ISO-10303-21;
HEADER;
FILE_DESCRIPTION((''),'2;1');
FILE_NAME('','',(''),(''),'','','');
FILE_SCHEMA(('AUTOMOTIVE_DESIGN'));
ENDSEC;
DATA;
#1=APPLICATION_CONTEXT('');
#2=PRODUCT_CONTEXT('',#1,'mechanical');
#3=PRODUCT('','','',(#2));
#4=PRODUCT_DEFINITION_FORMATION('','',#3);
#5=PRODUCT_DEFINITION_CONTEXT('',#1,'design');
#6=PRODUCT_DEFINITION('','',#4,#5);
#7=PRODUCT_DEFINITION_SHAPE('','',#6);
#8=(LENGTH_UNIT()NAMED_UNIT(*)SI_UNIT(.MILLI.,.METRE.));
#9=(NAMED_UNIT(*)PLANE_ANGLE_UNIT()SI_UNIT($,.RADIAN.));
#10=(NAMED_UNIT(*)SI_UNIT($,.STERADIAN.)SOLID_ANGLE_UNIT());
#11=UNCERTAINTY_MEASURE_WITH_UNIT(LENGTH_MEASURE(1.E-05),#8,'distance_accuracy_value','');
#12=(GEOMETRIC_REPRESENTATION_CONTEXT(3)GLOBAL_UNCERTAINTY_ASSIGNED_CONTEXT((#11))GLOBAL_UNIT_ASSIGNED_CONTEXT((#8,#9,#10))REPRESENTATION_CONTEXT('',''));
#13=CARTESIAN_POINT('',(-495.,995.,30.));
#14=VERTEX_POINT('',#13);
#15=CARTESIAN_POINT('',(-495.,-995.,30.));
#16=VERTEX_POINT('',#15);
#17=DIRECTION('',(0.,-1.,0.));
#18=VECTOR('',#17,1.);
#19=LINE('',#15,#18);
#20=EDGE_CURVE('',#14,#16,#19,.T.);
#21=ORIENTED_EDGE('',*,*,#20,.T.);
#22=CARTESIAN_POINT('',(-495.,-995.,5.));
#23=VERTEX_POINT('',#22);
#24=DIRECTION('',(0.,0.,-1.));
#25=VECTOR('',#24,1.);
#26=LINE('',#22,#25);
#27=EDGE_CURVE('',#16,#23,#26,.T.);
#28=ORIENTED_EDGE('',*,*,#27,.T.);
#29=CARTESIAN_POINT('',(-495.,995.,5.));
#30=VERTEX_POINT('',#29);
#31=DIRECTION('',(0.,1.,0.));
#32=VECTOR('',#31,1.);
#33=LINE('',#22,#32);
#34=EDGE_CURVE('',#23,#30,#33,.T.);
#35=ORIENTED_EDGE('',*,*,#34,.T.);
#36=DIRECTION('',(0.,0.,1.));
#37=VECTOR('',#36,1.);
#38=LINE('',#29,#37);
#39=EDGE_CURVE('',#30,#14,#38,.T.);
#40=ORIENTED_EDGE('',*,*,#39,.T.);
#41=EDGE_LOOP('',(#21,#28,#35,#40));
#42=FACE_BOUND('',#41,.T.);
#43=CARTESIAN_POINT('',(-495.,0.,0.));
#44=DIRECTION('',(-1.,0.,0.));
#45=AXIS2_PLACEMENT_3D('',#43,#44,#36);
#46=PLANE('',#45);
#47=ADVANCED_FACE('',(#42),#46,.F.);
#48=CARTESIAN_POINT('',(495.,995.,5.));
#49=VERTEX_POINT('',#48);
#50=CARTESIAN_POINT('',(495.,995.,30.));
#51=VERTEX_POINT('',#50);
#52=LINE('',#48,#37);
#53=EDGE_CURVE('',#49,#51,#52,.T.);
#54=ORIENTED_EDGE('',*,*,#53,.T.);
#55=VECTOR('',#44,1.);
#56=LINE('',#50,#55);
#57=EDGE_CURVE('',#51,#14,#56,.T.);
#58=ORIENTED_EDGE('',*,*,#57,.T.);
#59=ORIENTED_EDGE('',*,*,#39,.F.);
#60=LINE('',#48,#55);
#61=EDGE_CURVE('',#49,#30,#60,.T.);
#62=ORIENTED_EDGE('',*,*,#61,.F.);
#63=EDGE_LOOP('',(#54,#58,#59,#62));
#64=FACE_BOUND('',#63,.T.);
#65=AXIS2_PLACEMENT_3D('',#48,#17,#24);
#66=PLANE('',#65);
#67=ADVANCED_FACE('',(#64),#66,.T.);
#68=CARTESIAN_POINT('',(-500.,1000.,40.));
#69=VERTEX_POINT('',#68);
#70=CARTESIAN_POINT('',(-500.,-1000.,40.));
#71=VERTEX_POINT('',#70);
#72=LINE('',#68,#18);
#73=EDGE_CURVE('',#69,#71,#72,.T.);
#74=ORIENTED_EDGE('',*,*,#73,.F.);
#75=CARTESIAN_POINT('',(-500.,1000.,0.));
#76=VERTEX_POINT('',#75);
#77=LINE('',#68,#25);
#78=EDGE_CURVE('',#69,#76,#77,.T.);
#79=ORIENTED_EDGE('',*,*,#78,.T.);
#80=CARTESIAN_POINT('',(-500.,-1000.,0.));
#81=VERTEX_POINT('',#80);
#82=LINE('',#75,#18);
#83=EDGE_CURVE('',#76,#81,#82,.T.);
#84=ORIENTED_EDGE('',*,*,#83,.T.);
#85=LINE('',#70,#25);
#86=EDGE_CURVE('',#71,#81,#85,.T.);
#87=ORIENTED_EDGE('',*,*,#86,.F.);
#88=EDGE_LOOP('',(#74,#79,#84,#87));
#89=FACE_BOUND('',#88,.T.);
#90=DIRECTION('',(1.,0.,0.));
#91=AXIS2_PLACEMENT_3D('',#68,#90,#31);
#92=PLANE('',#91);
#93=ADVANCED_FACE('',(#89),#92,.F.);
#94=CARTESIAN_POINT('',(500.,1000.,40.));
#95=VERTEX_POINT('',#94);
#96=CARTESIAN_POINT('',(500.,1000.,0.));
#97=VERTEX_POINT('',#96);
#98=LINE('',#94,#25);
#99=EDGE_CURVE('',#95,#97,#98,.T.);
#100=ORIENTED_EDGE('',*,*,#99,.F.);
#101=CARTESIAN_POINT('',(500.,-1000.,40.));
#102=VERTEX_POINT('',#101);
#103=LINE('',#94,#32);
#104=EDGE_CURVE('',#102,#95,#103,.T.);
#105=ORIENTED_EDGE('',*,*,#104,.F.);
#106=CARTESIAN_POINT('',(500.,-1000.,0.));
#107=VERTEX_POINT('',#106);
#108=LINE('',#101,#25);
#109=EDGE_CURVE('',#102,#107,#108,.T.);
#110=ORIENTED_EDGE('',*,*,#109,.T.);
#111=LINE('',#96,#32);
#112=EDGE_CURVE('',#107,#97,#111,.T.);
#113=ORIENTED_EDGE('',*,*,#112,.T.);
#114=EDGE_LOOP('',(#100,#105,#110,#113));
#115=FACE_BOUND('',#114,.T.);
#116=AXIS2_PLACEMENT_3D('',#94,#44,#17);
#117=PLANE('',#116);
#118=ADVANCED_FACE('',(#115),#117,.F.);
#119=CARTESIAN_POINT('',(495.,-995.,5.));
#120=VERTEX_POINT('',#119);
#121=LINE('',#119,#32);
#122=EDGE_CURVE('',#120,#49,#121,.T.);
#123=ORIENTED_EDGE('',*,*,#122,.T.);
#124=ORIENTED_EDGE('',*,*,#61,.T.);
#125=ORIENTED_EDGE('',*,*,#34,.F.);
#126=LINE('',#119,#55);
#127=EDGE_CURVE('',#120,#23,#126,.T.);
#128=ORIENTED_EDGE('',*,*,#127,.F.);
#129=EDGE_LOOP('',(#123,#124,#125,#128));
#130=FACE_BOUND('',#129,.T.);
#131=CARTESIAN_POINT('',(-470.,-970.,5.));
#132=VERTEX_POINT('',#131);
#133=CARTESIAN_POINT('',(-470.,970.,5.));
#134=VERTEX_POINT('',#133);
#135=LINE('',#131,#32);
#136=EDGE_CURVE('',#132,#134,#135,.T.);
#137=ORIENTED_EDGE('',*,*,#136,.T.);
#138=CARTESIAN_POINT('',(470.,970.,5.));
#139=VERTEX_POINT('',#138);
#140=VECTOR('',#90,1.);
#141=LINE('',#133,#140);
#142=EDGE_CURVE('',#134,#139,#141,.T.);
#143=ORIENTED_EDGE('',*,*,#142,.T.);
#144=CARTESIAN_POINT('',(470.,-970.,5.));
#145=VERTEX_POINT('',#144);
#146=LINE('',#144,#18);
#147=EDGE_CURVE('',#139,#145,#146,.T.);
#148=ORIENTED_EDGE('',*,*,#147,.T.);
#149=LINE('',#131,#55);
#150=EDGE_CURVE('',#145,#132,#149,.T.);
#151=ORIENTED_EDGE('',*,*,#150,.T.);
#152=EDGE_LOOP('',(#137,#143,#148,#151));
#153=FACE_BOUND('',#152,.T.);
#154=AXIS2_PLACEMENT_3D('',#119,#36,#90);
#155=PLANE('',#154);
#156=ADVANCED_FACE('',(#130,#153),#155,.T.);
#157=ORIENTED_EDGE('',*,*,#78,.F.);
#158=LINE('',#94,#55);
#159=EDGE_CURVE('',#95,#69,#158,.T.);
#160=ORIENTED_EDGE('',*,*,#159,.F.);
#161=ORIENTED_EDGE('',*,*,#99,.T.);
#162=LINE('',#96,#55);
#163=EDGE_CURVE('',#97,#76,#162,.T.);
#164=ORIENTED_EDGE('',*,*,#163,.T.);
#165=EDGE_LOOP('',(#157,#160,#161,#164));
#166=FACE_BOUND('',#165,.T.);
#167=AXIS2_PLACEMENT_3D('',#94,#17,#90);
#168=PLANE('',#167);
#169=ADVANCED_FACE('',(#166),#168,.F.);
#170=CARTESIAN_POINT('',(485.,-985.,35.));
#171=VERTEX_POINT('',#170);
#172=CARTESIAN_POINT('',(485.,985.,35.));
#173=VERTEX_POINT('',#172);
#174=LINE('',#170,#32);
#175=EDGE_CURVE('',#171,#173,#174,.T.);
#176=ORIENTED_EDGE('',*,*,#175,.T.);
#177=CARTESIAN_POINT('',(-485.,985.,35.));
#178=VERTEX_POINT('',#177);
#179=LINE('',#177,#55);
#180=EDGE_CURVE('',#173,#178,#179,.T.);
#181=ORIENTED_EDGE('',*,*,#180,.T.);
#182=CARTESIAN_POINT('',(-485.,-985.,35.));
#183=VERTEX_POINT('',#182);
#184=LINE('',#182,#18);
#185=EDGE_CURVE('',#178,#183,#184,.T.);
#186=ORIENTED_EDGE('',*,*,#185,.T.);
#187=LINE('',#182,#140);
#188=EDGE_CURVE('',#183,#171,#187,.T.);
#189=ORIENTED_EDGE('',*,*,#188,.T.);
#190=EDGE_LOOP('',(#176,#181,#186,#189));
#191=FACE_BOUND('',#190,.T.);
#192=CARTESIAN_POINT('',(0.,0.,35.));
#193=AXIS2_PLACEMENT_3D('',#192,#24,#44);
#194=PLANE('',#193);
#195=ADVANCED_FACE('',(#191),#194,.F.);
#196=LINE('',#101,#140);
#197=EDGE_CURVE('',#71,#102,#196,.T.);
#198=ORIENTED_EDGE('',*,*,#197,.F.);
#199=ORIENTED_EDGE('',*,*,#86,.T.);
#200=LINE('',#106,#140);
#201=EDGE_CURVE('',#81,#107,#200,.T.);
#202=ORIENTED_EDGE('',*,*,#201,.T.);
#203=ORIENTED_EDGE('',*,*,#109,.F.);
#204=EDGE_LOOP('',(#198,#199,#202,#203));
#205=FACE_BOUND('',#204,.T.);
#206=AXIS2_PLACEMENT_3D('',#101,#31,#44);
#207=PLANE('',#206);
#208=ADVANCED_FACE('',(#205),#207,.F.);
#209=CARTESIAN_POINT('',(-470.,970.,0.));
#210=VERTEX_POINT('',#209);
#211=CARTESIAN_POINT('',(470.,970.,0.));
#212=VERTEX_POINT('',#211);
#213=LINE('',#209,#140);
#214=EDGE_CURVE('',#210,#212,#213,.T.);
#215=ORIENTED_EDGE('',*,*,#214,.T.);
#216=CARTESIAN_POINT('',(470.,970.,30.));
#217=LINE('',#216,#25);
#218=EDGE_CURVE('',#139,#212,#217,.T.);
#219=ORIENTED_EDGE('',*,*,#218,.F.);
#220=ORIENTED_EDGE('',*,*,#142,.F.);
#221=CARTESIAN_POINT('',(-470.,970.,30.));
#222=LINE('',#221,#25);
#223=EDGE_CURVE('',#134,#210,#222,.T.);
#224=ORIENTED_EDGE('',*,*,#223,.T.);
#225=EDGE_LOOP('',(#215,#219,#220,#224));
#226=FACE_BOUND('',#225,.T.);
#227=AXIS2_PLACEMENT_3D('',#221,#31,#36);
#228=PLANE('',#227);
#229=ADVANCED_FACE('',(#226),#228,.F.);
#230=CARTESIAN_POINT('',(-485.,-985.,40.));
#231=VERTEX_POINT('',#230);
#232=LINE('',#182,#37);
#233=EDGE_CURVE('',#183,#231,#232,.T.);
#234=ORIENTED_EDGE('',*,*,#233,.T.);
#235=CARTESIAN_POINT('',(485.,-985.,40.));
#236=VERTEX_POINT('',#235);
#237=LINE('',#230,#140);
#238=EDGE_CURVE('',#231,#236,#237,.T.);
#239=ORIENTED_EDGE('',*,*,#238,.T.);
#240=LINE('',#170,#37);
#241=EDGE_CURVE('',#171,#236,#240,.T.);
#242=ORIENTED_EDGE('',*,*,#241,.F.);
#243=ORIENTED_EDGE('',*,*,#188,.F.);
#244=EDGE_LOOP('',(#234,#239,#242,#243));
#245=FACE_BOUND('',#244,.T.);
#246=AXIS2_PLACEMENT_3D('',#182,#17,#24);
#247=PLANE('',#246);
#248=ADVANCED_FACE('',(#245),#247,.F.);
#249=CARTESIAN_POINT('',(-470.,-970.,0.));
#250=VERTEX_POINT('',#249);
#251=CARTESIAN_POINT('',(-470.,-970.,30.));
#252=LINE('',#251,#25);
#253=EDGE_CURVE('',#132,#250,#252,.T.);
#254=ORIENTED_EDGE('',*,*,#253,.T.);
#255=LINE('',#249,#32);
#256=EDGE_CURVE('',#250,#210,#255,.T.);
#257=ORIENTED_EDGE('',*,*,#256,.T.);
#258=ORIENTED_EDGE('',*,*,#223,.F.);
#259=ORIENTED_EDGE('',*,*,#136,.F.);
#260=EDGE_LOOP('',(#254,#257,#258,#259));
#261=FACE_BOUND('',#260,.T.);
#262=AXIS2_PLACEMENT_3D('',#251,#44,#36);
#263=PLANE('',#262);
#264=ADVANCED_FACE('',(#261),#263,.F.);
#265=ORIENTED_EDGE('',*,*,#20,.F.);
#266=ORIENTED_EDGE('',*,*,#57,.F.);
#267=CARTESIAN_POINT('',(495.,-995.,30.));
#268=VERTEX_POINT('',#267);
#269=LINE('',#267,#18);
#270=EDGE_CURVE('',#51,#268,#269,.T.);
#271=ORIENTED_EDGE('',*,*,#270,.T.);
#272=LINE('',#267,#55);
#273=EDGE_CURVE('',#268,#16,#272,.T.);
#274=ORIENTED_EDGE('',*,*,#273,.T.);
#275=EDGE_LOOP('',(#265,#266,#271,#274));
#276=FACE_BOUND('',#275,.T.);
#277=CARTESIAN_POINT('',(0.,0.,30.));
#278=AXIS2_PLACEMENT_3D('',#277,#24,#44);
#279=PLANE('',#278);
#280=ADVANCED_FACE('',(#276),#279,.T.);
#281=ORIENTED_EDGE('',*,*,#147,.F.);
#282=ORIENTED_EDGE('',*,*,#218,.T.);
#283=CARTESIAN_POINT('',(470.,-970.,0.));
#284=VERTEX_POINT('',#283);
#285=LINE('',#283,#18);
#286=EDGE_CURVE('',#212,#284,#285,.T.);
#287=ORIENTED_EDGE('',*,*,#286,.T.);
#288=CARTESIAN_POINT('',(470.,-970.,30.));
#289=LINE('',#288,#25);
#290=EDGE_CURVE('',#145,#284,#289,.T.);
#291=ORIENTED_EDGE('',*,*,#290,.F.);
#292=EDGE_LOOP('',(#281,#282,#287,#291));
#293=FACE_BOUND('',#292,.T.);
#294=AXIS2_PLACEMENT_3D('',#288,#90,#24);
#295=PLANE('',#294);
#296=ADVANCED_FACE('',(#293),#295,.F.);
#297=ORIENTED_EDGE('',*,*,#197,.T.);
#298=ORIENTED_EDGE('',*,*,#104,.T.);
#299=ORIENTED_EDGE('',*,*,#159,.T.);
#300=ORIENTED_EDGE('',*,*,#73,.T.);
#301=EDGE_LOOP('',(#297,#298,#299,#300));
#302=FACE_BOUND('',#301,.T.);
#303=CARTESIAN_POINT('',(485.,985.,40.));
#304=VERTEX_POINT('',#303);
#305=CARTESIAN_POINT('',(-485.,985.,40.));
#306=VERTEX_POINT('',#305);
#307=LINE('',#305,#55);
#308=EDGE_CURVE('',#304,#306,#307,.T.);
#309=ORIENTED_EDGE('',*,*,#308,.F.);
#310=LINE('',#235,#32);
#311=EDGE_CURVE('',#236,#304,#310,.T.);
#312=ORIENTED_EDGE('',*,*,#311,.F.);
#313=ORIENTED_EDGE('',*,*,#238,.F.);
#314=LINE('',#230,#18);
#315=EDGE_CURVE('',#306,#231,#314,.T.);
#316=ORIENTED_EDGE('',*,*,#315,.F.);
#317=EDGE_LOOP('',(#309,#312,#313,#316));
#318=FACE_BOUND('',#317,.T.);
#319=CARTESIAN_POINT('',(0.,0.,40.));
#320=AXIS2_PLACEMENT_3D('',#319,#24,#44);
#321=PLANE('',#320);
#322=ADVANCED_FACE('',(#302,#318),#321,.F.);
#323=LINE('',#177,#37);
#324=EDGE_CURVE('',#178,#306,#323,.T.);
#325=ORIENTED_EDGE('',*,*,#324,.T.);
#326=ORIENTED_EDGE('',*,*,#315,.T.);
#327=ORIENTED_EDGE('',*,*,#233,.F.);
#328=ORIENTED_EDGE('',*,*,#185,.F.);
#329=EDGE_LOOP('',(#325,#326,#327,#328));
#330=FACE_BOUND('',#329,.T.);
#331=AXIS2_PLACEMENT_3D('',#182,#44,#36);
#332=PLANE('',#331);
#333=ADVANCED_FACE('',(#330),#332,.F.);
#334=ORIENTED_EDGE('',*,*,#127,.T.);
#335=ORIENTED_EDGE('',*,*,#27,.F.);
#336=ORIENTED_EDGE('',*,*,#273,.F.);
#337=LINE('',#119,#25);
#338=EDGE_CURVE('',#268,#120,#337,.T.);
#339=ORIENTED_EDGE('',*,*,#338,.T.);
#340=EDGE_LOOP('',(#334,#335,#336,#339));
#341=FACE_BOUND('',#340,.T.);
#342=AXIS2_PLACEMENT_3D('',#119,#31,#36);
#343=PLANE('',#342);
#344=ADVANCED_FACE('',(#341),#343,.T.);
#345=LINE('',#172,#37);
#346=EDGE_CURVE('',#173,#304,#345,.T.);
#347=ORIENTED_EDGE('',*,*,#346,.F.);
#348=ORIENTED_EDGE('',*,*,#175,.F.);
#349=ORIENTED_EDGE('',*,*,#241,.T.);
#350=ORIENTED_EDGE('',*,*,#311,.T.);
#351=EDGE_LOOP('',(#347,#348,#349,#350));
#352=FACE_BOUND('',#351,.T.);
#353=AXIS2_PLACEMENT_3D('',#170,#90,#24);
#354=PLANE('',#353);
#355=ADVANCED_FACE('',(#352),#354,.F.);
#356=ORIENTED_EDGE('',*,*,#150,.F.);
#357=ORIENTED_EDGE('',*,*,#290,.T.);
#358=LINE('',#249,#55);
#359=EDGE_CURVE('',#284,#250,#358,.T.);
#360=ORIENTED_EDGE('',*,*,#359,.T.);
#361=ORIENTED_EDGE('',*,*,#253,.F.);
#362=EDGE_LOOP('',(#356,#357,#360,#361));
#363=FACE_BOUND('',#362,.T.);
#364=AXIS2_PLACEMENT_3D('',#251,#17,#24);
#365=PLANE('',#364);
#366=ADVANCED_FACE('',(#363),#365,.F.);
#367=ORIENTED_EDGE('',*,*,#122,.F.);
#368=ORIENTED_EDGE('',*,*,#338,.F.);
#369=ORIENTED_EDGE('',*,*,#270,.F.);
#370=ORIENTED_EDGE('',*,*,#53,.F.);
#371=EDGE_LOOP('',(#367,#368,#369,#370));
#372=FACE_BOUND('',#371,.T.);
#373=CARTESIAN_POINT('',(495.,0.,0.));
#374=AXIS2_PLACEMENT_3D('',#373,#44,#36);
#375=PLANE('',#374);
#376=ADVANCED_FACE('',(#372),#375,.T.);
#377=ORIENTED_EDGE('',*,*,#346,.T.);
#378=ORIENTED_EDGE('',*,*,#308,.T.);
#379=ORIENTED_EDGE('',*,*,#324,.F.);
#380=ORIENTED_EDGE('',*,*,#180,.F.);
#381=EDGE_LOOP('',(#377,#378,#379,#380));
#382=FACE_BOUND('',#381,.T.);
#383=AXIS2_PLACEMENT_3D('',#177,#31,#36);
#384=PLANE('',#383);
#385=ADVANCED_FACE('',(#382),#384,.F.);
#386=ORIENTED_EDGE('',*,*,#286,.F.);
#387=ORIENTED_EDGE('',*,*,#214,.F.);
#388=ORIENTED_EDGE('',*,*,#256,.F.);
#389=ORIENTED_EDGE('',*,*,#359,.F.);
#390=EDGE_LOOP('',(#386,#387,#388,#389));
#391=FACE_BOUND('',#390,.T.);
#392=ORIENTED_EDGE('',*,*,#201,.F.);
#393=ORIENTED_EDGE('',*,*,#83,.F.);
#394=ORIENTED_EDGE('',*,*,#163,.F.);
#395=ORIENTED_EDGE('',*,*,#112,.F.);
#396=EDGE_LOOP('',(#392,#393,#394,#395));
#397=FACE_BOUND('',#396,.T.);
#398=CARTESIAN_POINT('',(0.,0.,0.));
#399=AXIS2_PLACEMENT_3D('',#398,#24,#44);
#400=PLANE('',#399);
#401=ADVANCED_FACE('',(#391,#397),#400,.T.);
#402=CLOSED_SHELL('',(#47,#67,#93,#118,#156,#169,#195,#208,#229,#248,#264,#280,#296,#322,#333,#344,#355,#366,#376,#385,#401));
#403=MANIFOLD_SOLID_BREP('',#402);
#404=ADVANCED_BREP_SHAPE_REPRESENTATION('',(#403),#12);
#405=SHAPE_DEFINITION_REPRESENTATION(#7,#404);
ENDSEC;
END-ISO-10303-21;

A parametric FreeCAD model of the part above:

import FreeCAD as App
import Part
import Sketcher

doc = App.newDocument("Part")
body = doc.addObject("PartDesign::Body", "Body")

# Sketch on XY plane
sketch1 = body.newObject("Sketcher::SketchObject", "Sketch")
sketch1.AttachmentSupport = (doc.getObject("XY_Plane"), [""])
sketch1.MapMode = "FlatFace"
sketch1.addGeometry(Part.LineSegment(App.Vector(-500, 1000, 0), App.Vector(-500, -1000, 0)), False)
sketch1.addGeometry(Part.LineSegment(App.Vector(-500, -1000, 0), App.Vector(500, -1000, 0)), False)
sketch1.addGeometry(Part.LineSegment(App.Vector(500, -1000, 0), App.Vector(500, 1000, 0)), False)
sketch1.addGeometry(Part.LineSegment(App.Vector(500, 1000, 0), App.Vector(-500, 1000, 0)), False)
sketch1.addConstraint(Sketcher.Constraint("Coincident", 0, 2, 1, 1))
sketch1.addConstraint(Sketcher.Constraint("Coincident", 1, 2, 2, 1))
sketch1.addConstraint(Sketcher.Constraint("Coincident", 2, 2, 3, 1))
sketch1.addConstraint(Sketcher.Constraint("Coincident", 3, 2, 0, 1))
sketch1.addConstraint(Sketcher.Constraint("Vertical", 0))
sketch1.addConstraint(Sketcher.Constraint("Horizontal", 1))
sketch1.addConstraint(Sketcher.Constraint("Vertical", 2))
sketch1.addConstraint(Sketcher.Constraint("Horizontal", 3))
sketch1.addConstraint(Sketcher.Constraint("Symmetric", 0, 2, 2, 2, -1, 1))
sketch1.addConstraint(Sketcher.Constraint("DistanceX", 1, 1, 1, 2, 1000.0))
sketch1.addConstraint(Sketcher.Constraint("DistanceY", 0, 2, 0, 1, 2000.0))
pad1 = body.newObject("PartDesign::Pad", "Pad")
pad1.Profile = sketch1
pad1.Length = 40

# Sketch on XY plane
sketch2 = body.newObject("Sketcher::SketchObject", "Sketch001")
sketch2.AttachmentSupport = (doc.getObject("XY_Plane"), [""])
sketch2.MapMode = "FlatFace"
sketch2.addGeometry(Part.LineSegment(App.Vector(470, 970, 0), App.Vector(470, -970, 0)), False)
sketch2.addGeometry(Part.LineSegment(App.Vector(470, -970, 0), App.Vector(-470, -970, 0)), False)
sketch2.addGeometry(Part.LineSegment(App.Vector(-470, -970, 0), App.Vector(-470, 970, 0)), False)
sketch2.addGeometry(Part.LineSegment(App.Vector(-470, 970, 0), App.Vector(470, 970, 0)), False)
sketch2.addConstraint(Sketcher.Constraint("Coincident", 0, 2, 1, 1))
sketch2.addConstraint(Sketcher.Constraint("Coincident", 1, 2, 2, 1))
sketch2.addConstraint(Sketcher.Constraint("Coincident", 2, 2, 3, 1))
sketch2.addConstraint(Sketcher.Constraint("Coincident", 3, 2, 0, 1))
sketch2.addConstraint(Sketcher.Constraint("Vertical", 0))
sketch2.addConstraint(Sketcher.Constraint("Horizontal", 1))
sketch2.addConstraint(Sketcher.Constraint("Vertical", 2))
sketch2.addConstraint(Sketcher.Constraint("Horizontal", 3))
sketch2.addConstraint(Sketcher.Constraint("Symmetric", 0, 2, 2, 2, -1, 1))
sketch2.addConstraint(Sketcher.Constraint("DistanceX", 1, 2, 1, 1, 940.0))
sketch2.addConstraint(Sketcher.Constraint("DistanceY", 0, 2, 0, 1, 1940.0))
pocket1 = body.newObject("PartDesign::Pocket", "Pocket")
pocket1.Profile = sketch2
pocket1.Length = 30
pocket1.Reversed = True

# Sketch on YZ plane
sketch3 = body.newObject("Sketcher::SketchObject", "Sketch002")
sketch3.AttachmentSupport = (doc.getObject("YZ_Plane"), [""])
sketch3.MapMode = "FlatFace"
sketch3.addGeometry(Part.LineSegment(App.Vector(995, 30, 0), App.Vector(-995, 30, 0)), False)
sketch3.addGeometry(Part.LineSegment(App.Vector(-995, 30, 0), App.Vector(-995, 5, 0)), False)
sketch3.addGeometry(Part.LineSegment(App.Vector(-995, 5, 0), App.Vector(995, 5, 0)), False)
sketch3.addGeometry(Part.LineSegment(App.Vector(995, 5, 0), App.Vector(995, 30, 0)), False)
sketch3.addConstraint(Sketcher.Constraint("Coincident", 0, 2, 1, 1))
sketch3.addConstraint(Sketcher.Constraint("Coincident", 1, 2, 2, 1))
sketch3.addConstraint(Sketcher.Constraint("Coincident", 2, 2, 3, 1))
sketch3.addConstraint(Sketcher.Constraint("Coincident", 3, 2, 0, 1))
sketch3.addConstraint(Sketcher.Constraint("Horizontal", 0))
sketch3.addConstraint(Sketcher.Constraint("Vertical", 1))
sketch3.addConstraint(Sketcher.Constraint("Horizontal", 2))
sketch3.addConstraint(Sketcher.Constraint("Vertical", 3))
sketch3.addConstraint(Sketcher.Constraint("DistanceX", 0, 2, 0, 1, 1990.0))
sketch3.addConstraint(Sketcher.Constraint("DistanceY", 1, 2, 1, 1, 25.0))
sketch3.addConstraint(Sketcher.Constraint("DistanceX", 0, 2, -1, 1, 995.0))
sketch3.addConstraint(Sketcher.Constraint("DistanceY", -1, 1, 0, 2, 30.0))
pocket2 = body.newObject("PartDesign::Pocket", "Pocket001")
pocket2.Profile = sketch3
pocket2.Type = "TwoLengths"
pocket2.Length = 495
pocket2.Length2 = 495
pocket2.Reversed = True

# Sketch on XY plane
sketch4 = body.newObject("Sketcher::SketchObject", "Sketch003")
sketch4.AttachmentSupport = (doc.getObject("XY_Plane"), [""])
sketch4.MapMode = "FlatFace"
sketch4.AttachmentOffset = App.Placement(App.Vector(0, 0, 40), App.Rotation())
sketch4.addGeometry(Part.LineSegment(App.Vector(-485, 985, 0), App.Vector(-485, -985, 0)), False)
sketch4.addGeometry(Part.LineSegment(App.Vector(-485, -985, 0), App.Vector(485, -985, 0)), False)
sketch4.addGeometry(Part.LineSegment(App.Vector(485, -985, 0), App.Vector(485, 985, 0)), False)
sketch4.addGeometry(Part.LineSegment(App.Vector(485, 985, 0), App.Vector(-485, 985, 0)), False)
sketch4.addConstraint(Sketcher.Constraint("Coincident", 0, 2, 1, 1))
sketch4.addConstraint(Sketcher.Constraint("Coincident", 1, 2, 2, 1))
sketch4.addConstraint(Sketcher.Constraint("Coincident", 2, 2, 3, 1))
sketch4.addConstraint(Sketcher.Constraint("Coincident", 3, 2, 0, 1))
sketch4.addConstraint(Sketcher.Constraint("Vertical", 0))
sketch4.addConstraint(Sketcher.Constraint("Horizontal", 1))
sketch4.addConstraint(Sketcher.Constraint("Vertical", 2))
sketch4.addConstraint(Sketcher.Constraint("Horizontal", 3))
sketch4.addConstraint(Sketcher.Constraint("Symmetric", 0, 2, 2, 2, -1, 1))
sketch4.addConstraint(Sketcher.Constraint("DistanceX", 1, 1, 1, 2, 970.0))
sketch4.addConstraint(Sketcher.Constraint("DistanceY", 0, 2, 0, 1, 1970.0))
pocket3 = body.newObject("PartDesign::Pocket", "Pocket002")
pocket3.Profile = sketch4
pocket3.Length = 5

doc.recompute()
